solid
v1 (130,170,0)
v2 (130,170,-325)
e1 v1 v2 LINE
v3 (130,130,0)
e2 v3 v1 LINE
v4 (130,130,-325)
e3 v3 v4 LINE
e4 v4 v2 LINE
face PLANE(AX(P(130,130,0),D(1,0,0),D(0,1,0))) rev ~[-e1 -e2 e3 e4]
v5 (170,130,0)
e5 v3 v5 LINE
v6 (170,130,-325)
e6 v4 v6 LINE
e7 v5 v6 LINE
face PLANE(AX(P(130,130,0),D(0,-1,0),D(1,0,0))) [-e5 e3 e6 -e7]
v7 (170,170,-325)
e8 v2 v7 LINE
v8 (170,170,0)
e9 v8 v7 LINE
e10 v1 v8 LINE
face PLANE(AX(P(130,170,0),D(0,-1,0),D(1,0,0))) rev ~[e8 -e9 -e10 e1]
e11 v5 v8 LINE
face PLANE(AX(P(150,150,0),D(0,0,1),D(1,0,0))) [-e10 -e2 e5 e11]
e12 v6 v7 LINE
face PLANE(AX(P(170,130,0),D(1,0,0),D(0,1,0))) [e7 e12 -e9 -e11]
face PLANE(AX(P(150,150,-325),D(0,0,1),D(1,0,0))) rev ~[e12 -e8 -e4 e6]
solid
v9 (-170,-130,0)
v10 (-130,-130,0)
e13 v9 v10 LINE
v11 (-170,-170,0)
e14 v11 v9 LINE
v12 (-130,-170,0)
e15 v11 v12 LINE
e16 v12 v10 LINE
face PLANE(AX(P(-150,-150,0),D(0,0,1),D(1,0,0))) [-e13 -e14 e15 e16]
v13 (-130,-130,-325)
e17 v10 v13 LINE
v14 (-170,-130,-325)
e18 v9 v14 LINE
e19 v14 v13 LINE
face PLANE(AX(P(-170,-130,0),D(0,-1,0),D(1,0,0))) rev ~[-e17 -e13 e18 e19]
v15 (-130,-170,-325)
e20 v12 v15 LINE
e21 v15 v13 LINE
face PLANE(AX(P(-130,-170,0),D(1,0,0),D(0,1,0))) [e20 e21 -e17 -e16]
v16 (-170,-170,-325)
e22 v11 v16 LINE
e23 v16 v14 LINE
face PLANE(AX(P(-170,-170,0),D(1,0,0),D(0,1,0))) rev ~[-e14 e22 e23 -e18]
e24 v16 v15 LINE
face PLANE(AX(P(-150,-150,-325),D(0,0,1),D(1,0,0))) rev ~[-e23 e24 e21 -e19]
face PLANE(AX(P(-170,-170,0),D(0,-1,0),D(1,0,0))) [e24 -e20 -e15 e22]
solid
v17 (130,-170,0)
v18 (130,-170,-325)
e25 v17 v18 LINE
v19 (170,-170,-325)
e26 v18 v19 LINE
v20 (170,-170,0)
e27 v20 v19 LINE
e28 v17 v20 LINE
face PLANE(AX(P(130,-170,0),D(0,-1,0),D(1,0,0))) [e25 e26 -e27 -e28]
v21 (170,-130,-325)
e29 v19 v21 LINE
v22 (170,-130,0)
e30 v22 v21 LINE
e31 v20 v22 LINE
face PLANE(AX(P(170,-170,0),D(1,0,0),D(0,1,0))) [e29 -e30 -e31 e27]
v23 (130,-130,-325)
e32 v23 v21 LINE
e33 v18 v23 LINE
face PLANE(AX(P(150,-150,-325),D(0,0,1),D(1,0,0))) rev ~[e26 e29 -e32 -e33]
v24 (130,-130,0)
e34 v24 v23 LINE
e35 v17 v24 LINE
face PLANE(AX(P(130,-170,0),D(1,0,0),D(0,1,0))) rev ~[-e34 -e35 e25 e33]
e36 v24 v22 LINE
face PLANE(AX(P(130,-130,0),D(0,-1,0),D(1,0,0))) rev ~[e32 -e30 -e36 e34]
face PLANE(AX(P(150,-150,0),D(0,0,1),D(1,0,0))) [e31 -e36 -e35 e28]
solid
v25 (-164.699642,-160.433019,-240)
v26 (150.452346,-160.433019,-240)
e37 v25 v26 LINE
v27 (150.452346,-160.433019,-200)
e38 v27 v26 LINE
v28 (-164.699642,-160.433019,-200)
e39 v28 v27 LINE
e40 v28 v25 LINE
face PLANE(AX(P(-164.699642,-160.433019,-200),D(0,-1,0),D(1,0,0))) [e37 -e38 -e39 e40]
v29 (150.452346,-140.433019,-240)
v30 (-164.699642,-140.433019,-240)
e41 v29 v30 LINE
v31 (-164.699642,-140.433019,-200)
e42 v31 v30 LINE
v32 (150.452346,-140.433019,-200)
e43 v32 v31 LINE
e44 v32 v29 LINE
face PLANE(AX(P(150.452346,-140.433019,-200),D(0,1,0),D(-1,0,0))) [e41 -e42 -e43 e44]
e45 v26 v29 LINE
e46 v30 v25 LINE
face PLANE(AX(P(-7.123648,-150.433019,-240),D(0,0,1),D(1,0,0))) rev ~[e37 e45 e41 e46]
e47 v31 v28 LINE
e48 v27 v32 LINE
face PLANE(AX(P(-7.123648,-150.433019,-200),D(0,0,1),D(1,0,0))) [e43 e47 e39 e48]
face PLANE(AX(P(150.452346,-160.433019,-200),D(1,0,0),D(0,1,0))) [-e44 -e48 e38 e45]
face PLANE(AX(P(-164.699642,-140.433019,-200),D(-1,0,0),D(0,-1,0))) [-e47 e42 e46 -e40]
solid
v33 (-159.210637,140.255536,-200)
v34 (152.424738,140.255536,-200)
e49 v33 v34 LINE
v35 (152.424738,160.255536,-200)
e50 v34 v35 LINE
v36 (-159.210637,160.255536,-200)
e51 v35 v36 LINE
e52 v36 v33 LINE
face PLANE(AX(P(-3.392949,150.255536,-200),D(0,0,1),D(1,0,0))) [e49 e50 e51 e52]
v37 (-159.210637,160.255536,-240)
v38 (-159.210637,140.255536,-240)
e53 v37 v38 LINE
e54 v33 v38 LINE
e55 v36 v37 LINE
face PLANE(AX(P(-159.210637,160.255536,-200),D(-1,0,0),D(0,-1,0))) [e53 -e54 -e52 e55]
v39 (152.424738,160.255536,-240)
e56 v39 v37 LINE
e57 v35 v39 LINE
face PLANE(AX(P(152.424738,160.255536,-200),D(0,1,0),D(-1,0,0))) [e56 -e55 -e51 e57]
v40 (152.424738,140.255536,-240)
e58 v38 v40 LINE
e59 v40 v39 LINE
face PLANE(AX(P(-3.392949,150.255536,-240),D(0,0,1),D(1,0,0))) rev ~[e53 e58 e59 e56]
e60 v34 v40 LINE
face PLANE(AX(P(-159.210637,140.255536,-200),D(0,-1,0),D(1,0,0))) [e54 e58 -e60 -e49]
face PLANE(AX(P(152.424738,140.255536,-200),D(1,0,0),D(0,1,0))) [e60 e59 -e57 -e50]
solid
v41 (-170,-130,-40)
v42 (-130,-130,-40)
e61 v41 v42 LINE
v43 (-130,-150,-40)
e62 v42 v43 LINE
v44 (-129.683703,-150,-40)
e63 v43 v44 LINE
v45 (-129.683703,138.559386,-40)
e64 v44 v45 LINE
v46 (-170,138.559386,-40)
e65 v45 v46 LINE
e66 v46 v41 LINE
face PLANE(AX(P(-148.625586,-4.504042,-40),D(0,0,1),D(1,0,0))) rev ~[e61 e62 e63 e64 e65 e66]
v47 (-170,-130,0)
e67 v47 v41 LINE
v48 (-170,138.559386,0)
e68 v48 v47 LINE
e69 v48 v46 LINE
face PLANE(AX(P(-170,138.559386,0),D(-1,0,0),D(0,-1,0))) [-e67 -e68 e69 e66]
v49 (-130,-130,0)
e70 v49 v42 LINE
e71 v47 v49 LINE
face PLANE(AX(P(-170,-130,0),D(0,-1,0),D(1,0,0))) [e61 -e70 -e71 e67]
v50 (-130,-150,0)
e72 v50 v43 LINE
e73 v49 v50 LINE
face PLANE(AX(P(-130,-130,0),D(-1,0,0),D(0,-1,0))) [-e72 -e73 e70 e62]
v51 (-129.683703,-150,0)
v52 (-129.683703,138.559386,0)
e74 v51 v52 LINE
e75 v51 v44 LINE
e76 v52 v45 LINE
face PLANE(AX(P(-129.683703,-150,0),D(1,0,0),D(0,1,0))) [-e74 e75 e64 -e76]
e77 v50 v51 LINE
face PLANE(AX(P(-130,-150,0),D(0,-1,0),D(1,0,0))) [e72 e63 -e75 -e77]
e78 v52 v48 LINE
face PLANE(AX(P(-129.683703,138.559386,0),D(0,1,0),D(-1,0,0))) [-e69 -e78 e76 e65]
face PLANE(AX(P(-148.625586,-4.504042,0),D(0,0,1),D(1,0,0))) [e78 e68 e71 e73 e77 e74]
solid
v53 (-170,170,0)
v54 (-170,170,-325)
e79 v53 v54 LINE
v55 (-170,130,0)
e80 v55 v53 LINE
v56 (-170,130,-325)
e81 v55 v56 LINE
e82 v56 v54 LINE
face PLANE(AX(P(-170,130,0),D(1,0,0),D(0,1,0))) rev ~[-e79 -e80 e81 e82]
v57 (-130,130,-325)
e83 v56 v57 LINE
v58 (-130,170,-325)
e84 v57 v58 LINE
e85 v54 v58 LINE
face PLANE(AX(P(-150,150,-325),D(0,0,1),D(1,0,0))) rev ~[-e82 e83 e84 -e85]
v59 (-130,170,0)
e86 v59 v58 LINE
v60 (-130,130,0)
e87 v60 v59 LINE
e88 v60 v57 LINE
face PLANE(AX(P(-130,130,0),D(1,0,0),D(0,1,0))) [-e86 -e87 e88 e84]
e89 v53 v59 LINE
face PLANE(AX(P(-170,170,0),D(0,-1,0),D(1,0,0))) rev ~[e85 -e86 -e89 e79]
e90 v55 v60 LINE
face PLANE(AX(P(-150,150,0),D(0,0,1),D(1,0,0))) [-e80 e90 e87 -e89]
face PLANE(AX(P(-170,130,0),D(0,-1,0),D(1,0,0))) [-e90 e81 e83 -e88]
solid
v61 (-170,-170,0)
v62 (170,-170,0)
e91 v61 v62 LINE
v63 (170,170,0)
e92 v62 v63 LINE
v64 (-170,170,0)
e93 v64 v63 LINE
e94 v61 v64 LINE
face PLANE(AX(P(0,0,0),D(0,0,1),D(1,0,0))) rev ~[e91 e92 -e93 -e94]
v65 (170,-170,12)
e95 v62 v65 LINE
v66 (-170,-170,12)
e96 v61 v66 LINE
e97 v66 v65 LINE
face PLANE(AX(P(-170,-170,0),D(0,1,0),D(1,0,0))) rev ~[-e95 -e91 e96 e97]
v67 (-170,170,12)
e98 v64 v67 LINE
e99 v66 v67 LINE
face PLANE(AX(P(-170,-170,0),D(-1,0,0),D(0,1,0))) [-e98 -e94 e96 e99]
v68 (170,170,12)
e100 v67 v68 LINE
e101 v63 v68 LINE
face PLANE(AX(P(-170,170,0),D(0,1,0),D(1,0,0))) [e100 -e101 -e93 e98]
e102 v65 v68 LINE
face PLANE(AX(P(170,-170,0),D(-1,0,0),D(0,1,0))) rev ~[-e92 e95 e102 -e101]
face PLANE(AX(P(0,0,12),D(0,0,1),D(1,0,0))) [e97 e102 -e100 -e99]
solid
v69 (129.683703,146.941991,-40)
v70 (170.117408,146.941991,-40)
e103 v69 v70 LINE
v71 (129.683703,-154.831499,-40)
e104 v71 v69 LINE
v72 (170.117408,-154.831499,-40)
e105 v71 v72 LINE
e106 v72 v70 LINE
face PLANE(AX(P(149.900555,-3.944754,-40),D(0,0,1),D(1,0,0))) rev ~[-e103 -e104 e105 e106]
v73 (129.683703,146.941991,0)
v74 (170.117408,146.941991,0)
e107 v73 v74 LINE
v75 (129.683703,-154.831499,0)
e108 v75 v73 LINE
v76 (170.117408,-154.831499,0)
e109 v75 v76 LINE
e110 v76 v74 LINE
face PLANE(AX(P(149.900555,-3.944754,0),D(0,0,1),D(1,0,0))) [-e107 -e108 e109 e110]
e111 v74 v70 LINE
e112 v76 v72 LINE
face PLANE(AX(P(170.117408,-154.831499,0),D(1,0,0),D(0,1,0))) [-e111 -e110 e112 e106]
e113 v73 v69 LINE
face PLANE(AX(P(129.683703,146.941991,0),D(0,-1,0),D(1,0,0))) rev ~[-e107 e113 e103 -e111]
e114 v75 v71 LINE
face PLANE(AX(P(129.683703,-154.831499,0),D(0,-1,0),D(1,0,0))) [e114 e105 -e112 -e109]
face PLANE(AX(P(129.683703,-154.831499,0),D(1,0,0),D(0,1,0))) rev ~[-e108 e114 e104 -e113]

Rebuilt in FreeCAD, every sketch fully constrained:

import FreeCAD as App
import Part
import Sketcher

doc = App.newDocument("Part")
body = doc.addObject("PartDesign::Body", "Body")
body.AllowCompound = True

# Sketch on XY plane
sketch1 = body.newObject("Sketcher::SketchObject", "Sketch")
sketch1.AttachmentSupport = (doc.getObject("XY_Plane"), [""])
sketch1.MapMode = "FlatFace"
sketch1.addGeometry([
    Part.LineSegment(App.Vector(-170, -130, 0), App.Vector(-170, -170, 0)),  # 0
    Part.LineSegment(App.Vector(-170, -170, 0), App.Vector(-130, -170, 0)),  # 1
    Part.LineSegment(App.Vector(-130, -170, 0), App.Vector(-130, -130, 0)),  # 2
    Part.LineSegment(App.Vector(-130, -130, 0), App.Vector(-170, -130, 0)),  # 3
    Part.LineSegment(App.Vector(-170, 170, 0), App.Vector(-170, 130, 0)),  # 4
    Part.LineSegment(App.Vector(-170, 130, 0), App.Vector(-130, 130, 0)),  # 5
    Part.LineSegment(App.Vector(-130, 130, 0), App.Vector(-130, 170, 0)),  # 6
    Part.LineSegment(App.Vector(-130, 170, 0), App.Vector(-170, 170, 0)),  # 7
    Part.LineSegment(App.Vector(130, -130, 0), App.Vector(130, -170, 0)),  # 8
    Part.LineSegment(App.Vector(130, -170, 0), App.Vector(170, -170, 0)),  # 9
    Part.LineSegment(App.Vector(170, -170, 0), App.Vector(170, -130, 0)),  # 10
    Part.LineSegment(App.Vector(170, -130, 0), App.Vector(130, -130, 0)),  # 11
    Part.LineSegment(App.Vector(130, 170, 0), App.Vector(130, 130, 0)),  # 12
    Part.LineSegment(App.Vector(130, 130, 0), App.Vector(170, 130, 0)),  # 13
    Part.LineSegment(App.Vector(170, 130, 0), App.Vector(170, 170, 0)),  # 14
    Part.LineSegment(App.Vector(170, 170, 0), App.Vector(130, 170, 0)),  # 15
], False)
sketch1.addConstraint([
    Sketcher.Constraint("Coincident", 0, 2, 1, 1),
    Sketcher.Constraint("Coincident", 1, 2, 2, 1),
    Sketcher.Constraint("Coincident", 2, 2, 3, 1),
    Sketcher.Constraint("Coincident", 3, 2, 0, 1),
    Sketcher.Constraint("Coincident", 4, 2, 5, 1),
    Sketcher.Constraint("Coincident", 5, 2, 6, 1),
    Sketcher.Constraint("Coincident", 6, 2, 7, 1),
    Sketcher.Constraint("Coincident", 7, 2, 4, 1),
    Sketcher.Constraint("Coincident", 8, 2, 9, 1),
    Sketcher.Constraint("Coincident", 9, 2, 10, 1),
    Sketcher.Constraint("Coincident", 10, 2, 11, 1),
    Sketcher.Constraint("Coincident", 11, 2, 8, 1),
    Sketcher.Constraint("Coincident", 12, 2, 13, 1),
    Sketcher.Constraint("Coincident", 13, 2, 14, 1),
    Sketcher.Constraint("Coincident", 14, 2, 15, 1),
    Sketcher.Constraint("Coincident", 15, 2, 12, 1),
    Sketcher.Constraint("Vertical", 0),
    Sketcher.Constraint("Horizontal", 1),
    Sketcher.Constraint("Vertical", 2),
    Sketcher.Constraint("Horizontal", 3),
    Sketcher.Constraint("Vertical", 4),
    Sketcher.Constraint("Horizontal", 5),
    Sketcher.Constraint("Vertical", 6),
    Sketcher.Constraint("Horizontal", 7),
    Sketcher.Constraint("Vertical", 8),
    Sketcher.Constraint("Horizontal", 9),
    Sketcher.Constraint("Vertical", 10),
    Sketcher.Constraint("Horizontal", 11),
    Sketcher.Constraint("Vertical", 12),
    Sketcher.Constraint("Horizontal", 13),
    Sketcher.Constraint("Vertical", 14),
    Sketcher.Constraint("Horizontal", 15),
    Sketcher.Constraint("Symmetric", 6, 2, 8, 2, -1, 1),
    Sketcher.Constraint("Symmetric", 4, 2, 10, 2, -1, 1),
    Sketcher.Constraint("Symmetric", 2, 2, 12, 2, -1, 1),
    Sketcher.Constraint("Symmetric", 0, 2, 14, 2, -1, 1),
    Sketcher.Constraint("Symmetric", 1, 2, 8, 2, -2),
    Sketcher.Constraint("Symmetric", 3, 2, 10, 2, -2),
    Sketcher.Constraint("Equal", 15, 0),
    Sketcher.Constraint("DistanceX", 1, 1, 1, 2, 40.0),
    Sketcher.Constraint("DistanceX", 0, 2, -1, 1, 170.0),
    Sketcher.Constraint("DistanceY", 0, 2, -1, 1, 170.0),
])
pad1 = body.newObject("PartDesign::Pad", "Pad")
pad1.Profile = sketch1
pad1.Length = 325
pad1.Reversed = True
body2 = doc.addObject("PartDesign::Body", "Body001")
body2.AllowCompound = True

# Sketch on XY plane
sketch2 = body2.newObject("Sketcher::SketchObject", "Sketch001")
sketch2.AttachmentSupport = (doc.getObject("XY_Plane001"), [""])
sketch2.MapMode = "FlatFace"
sketch2.addGeometry([
    Part.LineSegment(App.Vector(-130, -130, 0), App.Vector(-130, -150, 0)),  # 0
    Part.LineSegment(App.Vector(-130, -150, 0), App.Vector(-129.683703, -150, 0)),  # 1
    Part.LineSegment(App.Vector(-129.683703, -150, 0), App.Vector(-129.683703, 138.559386, 0)),  # 2
    Part.LineSegment(App.Vector(-129.683703, 138.559386, 0), App.Vector(-170, 138.559386, 0)),  # 3
    Part.LineSegment(App.Vector(-170, 138.559386, 0), App.Vector(-170, -130, 0)),  # 4
    Part.LineSegment(App.Vector(-170, -130, 0), App.Vector(-130, -130, 0)),  # 5
    Part.LineSegment(App.Vector(129.683703, 146.941991, 0), App.Vector(129.683703, -154.831499, 0)),  # 6
    Part.LineSegment(App.Vector(129.683703, -154.831499, 0), App.Vector(170.117408, -154.831499, 0)),  # 7
    Part.LineSegment(App.Vector(170.117408, -154.831499, 0), App.Vector(170.117408, 146.941991, 0)),  # 8
    Part.LineSegment(App.Vector(170.117408, 146.941991, 0), App.Vector(129.683703, 146.941991, 0)),  # 9
], False)
sketch2.addConstraint([
    Sketcher.Constraint("Coincident", 0, 2, 1, 1),
    Sketcher.Constraint("Coincident", 1, 2, 2, 1),
    Sketcher.Constraint("Coincident", 2, 2, 3, 1),
    Sketcher.Constraint("Coincident", 3, 2, 4, 1),
    Sketcher.Constraint("Coincident", 4, 2, 5, 1),
    Sketcher.Constraint("Coincident", 5, 2, 0, 1),
    Sketcher.Constraint("Coincident", 6, 2, 7, 1),
    Sketcher.Constraint("Coincident", 7, 2, 8, 1),
    Sketcher.Constraint("Coincident", 8, 2, 9, 1),
    Sketcher.Constraint("Coincident", 9, 2, 6, 1),
    Sketcher.Constraint("Vertical", 0),
    Sketcher.Constraint("Horizontal", 1),
    Sketcher.Constraint("Vertical", 2),
    Sketcher.Constraint("Horizontal", 3),
    Sketcher.Constraint("Vertical", 4),
    Sketcher.Constraint("Horizontal", 5),
    Sketcher.Constraint("Vertical", 6),
    Sketcher.Constraint("Horizontal", 7),
    Sketcher.Constraint("Vertical", 8),
    Sketcher.Constraint("Horizontal", 9),
    Sketcher.Constraint("DistanceX", 5, 1, 5, 2, 40.0),
    Sketcher.Constraint("DistanceY", 0, 2, 0, 1, 20.0),
    Sketcher.Constraint("DistanceX", 0, 2, -1, 1, 130.0),
    Sketcher.Constraint("DistanceY", 0, 2, -1, 1, 150.0),
    Sketcher.Constraint("DistanceY", 6, 2, 6, 1, 301.773489),
    Sketcher.Constraint("DistanceY", 6, 2, -1, 1, 154.831499),
    Sketcher.Constraint("DistanceX", 1, 1, 1, 2, 0.316297),
    Sketcher.Constraint("DistanceX", 7, 1, 7, 2, 40.433705),
    Sketcher.Constraint("DistanceY", 2, 1, 2, 2, 288.559386),
    Sketcher.Constraint("DistanceX", 1, 2, 7, 2, 299.801111),
])
pad2 = body2.newObject("PartDesign::Pad", "Pad001")
pad2.Profile = sketch2
pad2.Length = 40
pad2.Reversed = True
body3 = doc.addObject("PartDesign::Body", "Body002")
body3.AllowCompound = True

# Sketch on XY plane
sketch3 = body3.newObject("Sketcher::SketchObject", "Sketch002")
sketch3.AttachmentSupport = (doc.getObject("XY_Plane002"), [""])
sketch3.MapMode = "FlatFace"
sketch3.AttachmentOffset = App.Placement(App.Vector(0, 0, -200), App.Rotation())
sketch3.addGeometry([
    Part.LineSegment(App.Vector(-164.699642, -140.433019, 0), App.Vector(-164.699642, -160.433019, 0)),  # 0
    Part.LineSegment(App.Vector(-164.699642, -160.433019, 0), App.Vector(150.452346, -160.433019, 0)),  # 1
    Part.LineSegment(App.Vector(150.452346, -160.433019, 0), App.Vector(150.452346, -140.433019, 0)),  # 2
    Part.LineSegment(App.Vector(150.452346, -140.433019, 0), App.Vector(-164.699642, -140.433019, 0)),  # 3
    Part.LineSegment(App.Vector(152.424738, 160.255536, 0), App.Vector(-159.210637, 160.255536, 0)),  # 4
    Part.LineSegment(App.Vector(-159.210637, 160.255536, 0), App.Vector(-159.210637, 140.255536, 0)),  # 5
    Part.LineSegment(App.Vector(-159.210637, 140.255536, 0), App.Vector(152.424738, 140.255536, 0)),  # 6
    Part.LineSegment(App.Vector(152.424738, 140.255536, 0), App.Vector(152.424738, 160.255536, 0)),  # 7
], False)
sketch3.addConstraint([
    Sketcher.Constraint("Coincident", 0, 2, 1, 1),
    Sketcher.Constraint("Coincident", 1, 2, 2, 1),
    Sketcher.Constraint("Coincident", 2, 2, 3, 1),
    Sketcher.Constraint("Coincident", 3, 2, 0, 1),
    Sketcher.Constraint("Coincident", 4, 2, 5, 1),
    Sketcher.Constraint("Coincident", 5, 2, 6, 1),
    Sketcher.Constraint("Coincident", 6, 2, 7, 1),
    Sketcher.Constraint("Coincident", 7, 2, 4, 1),
    Sketcher.Constraint("Vertical", 0),
    Sketcher.Constraint("Horizontal", 1),
    Sketcher.Constraint("Vertical", 2),
    Sketcher.Constraint("Horizontal", 3),
    Sketcher.Constraint("Horizontal", 4),
    Sketcher.Constraint("Vertical", 5),
    Sketcher.Constraint("Horizontal", 6),
    Sketcher.Constraint("Vertical", 7),
    Sketcher.Constraint("Equal", 2, 5),
    Sketcher.Constraint("DistanceY", 0, 2, 0, 1, 20.0),
    Sketcher.Constraint("DistanceX", 1, 1, 1, 2, 315.151988),
    Sketcher.Constraint("DistanceX", 4, 2, 4, 1, 311.635375),
    Sketcher.Constraint("DistanceY", 0, 2, -1, 1, 160.433019),
    Sketcher.Constraint("DistanceX", 2, 2, 6, 2, 1.972392),
    Sketcher.Constraint("DistanceX", 0, 2, -1, 1, 164.699642),
    Sketcher.Constraint("DistanceY", -1, 1, 4, 2, 160.255536),
])
pad3 = body3.newObject("PartDesign::Pad", "Pad002")
pad3.Profile = sketch3
pad3.Length = 40
pad3.Reversed = True
body4 = doc.addObject("PartDesign::Body", "Body003")

# Sketch on XY plane
sketch4 = body4.newObject("Sketcher::SketchObject", "Sketch003")
sketch4.AttachmentSupport = (doc.getObject("XY_Plane003"), [""])
sketch4.MapMode = "FlatFace"
sketch4.addGeometry([
    Part.LineSegment(App.Vector(-170, 170, 0), App.Vector(-170, -170, 0)),
    Part.LineSegment(App.Vector(-170, -170, 0), App.Vector(170, -170, 0)),
    Part.LineSegment(App.Vector(170, -170, 0), App.Vector(170, 170, 0)),
    Part.LineSegment(App.Vector(170, 170, 0), App.Vector(-170, 170, 0)),
], False)
sketch4.addConstraint([
    Sketcher.Constraint("Coincident", 0, 2, 1, 1),
    Sketcher.Constraint("Coincident", 1, 2, 2, 1),
    Sketcher.Constraint("Coincident", 2, 2, 3, 1),
    Sketcher.Constraint("Coincident", 3, 2, 0, 1),
    Sketcher.Constraint("Vertical", 0),
    Sketcher.Constraint("Horizontal", 1),
    Sketcher.Constraint("Vertical", 2),
    Sketcher.Constraint("Horizontal", 3),
    Sketcher.Constraint("Symmetric", 0, 2, 2, 2, -1, 1),
    Sketcher.Constraint("Equal", 3, 0),
    Sketcher.Constraint("DistanceX", 1, 1, 1, 2, 340.0),
])
pad4 = body4.newObject("PartDesign::Pad", "Pad003")
pad4.Profile = sketch4
pad4.Length = 12

doc.recompute()
